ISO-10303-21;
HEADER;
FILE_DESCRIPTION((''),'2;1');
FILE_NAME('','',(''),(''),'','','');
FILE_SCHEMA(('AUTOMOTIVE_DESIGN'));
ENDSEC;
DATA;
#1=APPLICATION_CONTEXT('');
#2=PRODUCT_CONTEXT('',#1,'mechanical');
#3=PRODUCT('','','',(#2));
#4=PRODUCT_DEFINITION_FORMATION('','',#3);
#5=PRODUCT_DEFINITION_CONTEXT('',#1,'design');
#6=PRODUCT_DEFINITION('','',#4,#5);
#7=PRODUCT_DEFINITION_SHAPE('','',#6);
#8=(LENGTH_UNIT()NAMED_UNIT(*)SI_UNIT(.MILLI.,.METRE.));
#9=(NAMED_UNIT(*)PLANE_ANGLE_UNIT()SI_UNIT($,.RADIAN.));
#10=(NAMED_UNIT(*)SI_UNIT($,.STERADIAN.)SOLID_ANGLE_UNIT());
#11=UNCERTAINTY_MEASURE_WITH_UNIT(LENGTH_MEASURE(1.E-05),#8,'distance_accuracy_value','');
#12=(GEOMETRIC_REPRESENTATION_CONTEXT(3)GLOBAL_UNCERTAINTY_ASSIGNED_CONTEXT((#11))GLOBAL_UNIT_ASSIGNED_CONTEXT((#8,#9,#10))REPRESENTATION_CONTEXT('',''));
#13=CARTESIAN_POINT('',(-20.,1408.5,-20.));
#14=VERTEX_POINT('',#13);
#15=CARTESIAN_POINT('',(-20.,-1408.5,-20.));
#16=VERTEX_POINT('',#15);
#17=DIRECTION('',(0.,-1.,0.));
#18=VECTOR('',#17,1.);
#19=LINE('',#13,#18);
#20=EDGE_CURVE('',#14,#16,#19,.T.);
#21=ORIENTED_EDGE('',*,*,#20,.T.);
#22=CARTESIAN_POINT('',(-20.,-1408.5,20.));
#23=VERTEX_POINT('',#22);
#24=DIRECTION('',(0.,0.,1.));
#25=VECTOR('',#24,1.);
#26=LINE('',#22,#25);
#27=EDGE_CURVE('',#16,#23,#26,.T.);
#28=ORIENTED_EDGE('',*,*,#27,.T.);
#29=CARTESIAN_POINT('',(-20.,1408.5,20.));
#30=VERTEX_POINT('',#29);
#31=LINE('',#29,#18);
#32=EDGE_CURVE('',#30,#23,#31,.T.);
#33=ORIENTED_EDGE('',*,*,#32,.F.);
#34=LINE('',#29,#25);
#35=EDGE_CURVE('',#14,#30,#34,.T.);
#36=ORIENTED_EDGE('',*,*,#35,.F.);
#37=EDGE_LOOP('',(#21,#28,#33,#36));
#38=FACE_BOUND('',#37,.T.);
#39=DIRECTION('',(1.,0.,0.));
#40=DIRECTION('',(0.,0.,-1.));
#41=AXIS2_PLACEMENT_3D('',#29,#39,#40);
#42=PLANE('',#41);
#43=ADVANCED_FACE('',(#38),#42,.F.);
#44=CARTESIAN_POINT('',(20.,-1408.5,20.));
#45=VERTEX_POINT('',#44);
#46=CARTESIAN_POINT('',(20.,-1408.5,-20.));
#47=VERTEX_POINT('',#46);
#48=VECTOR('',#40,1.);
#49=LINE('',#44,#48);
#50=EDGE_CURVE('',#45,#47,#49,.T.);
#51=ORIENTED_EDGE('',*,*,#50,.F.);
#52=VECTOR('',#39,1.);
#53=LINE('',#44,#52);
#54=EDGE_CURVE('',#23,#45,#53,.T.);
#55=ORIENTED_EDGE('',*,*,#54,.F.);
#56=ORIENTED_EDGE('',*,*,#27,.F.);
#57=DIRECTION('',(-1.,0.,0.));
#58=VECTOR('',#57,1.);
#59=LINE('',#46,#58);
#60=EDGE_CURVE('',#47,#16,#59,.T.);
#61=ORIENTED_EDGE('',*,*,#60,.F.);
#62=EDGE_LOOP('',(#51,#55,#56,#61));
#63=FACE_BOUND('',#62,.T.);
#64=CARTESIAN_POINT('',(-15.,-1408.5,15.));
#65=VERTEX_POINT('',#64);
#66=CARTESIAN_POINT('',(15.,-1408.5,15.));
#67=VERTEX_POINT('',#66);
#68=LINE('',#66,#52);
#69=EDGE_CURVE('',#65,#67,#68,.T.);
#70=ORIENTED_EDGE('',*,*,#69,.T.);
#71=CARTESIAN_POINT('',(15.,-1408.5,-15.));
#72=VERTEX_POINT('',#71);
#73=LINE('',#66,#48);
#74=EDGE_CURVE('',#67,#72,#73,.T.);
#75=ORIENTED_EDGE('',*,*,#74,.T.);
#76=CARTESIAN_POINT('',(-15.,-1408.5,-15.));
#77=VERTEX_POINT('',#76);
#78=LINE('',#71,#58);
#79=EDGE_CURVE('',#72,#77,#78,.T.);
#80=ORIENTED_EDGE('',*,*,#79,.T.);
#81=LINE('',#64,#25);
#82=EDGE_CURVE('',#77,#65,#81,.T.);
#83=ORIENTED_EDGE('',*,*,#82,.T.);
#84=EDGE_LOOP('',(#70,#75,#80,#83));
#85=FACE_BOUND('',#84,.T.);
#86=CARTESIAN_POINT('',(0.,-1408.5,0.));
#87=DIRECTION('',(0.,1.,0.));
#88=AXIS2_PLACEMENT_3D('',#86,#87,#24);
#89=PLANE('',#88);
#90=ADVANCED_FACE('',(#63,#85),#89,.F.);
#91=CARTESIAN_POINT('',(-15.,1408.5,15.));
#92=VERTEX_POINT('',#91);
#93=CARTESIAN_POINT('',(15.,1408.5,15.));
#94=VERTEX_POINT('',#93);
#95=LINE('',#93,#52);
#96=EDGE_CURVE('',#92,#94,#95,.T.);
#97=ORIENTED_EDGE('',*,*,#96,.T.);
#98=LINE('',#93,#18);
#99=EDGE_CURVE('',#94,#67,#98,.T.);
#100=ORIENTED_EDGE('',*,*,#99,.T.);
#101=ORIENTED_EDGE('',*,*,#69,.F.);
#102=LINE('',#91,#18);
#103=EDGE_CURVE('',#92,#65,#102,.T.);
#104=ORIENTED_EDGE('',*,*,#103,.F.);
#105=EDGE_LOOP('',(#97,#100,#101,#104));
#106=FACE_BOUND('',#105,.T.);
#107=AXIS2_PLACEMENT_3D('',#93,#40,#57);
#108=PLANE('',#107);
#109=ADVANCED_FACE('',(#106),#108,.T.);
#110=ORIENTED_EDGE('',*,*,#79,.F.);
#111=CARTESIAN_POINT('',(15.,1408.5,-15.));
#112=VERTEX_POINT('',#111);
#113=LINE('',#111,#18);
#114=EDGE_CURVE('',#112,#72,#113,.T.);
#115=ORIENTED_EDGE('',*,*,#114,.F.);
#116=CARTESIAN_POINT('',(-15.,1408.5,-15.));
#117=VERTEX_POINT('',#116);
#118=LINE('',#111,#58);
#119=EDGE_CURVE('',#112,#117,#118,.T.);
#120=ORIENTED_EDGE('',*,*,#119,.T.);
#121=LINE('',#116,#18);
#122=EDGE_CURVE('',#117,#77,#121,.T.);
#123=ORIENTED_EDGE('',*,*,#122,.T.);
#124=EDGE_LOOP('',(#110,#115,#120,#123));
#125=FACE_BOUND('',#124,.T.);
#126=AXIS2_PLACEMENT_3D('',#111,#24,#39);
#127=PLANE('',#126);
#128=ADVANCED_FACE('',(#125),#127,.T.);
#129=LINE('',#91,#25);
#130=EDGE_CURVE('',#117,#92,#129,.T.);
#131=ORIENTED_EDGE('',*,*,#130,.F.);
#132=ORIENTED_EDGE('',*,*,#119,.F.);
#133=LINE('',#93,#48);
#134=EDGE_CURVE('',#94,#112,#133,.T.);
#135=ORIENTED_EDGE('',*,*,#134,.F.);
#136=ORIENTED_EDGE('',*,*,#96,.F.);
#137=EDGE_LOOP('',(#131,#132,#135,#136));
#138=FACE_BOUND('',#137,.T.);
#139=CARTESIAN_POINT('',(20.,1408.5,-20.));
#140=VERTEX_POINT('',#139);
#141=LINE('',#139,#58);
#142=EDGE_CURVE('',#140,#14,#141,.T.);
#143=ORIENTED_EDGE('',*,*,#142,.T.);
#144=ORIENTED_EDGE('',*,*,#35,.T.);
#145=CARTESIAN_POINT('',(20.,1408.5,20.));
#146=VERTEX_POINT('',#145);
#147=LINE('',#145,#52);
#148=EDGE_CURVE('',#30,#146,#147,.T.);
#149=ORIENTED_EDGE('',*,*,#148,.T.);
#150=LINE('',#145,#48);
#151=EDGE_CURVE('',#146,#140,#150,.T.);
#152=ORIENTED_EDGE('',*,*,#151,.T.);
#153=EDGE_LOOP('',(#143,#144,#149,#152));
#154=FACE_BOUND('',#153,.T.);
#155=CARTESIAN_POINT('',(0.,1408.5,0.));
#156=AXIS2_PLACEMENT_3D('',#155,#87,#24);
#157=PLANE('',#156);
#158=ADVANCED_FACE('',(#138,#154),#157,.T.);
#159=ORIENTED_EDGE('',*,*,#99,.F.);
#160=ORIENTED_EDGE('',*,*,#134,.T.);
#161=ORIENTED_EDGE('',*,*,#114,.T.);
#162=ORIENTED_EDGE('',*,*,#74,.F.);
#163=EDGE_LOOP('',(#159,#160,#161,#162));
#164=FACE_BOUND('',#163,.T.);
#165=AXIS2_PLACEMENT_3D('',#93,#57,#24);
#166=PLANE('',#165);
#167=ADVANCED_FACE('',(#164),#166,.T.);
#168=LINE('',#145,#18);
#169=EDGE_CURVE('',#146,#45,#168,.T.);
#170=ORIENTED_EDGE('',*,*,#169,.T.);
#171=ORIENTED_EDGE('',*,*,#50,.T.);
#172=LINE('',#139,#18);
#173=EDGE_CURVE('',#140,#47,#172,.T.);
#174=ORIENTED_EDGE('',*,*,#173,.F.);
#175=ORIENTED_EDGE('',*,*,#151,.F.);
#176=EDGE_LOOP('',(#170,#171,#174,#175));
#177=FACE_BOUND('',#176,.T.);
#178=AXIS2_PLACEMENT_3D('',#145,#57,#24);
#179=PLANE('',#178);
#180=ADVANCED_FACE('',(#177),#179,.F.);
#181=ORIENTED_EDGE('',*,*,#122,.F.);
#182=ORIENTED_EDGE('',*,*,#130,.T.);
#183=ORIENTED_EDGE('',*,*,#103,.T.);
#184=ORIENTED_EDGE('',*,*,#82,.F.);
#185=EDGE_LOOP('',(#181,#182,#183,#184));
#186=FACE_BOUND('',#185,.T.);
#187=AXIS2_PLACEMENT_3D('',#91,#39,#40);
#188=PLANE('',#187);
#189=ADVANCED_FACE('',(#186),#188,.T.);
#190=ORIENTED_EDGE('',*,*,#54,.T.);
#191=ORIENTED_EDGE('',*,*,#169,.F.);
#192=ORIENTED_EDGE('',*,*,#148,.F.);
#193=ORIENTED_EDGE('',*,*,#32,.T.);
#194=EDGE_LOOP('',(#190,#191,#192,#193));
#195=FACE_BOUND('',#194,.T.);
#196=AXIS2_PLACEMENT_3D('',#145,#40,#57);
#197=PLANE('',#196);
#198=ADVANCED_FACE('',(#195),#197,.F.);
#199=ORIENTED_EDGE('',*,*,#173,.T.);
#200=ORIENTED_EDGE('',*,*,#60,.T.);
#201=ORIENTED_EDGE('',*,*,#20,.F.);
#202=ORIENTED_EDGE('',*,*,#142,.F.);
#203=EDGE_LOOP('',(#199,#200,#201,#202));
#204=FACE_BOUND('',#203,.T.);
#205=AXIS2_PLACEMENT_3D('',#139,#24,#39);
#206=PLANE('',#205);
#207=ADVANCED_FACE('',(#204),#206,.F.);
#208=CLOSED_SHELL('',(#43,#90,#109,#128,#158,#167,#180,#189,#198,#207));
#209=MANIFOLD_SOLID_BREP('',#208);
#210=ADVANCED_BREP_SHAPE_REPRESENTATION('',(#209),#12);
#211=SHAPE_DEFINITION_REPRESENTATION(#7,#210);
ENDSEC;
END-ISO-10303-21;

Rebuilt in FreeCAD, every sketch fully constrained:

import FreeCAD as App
import Part
import Sketcher

V = App.Vector

doc = App.newDocument("Part")
body = doc.addObject("PartDesign::Body", "Body")

# Sketch on XZ plane
sketch1 = body.newObject("Sketcher::SketchObject", "Sketch")
sketch1.AttachmentSupport = (doc.getObject("XZ_Plane"), [""])
sketch1.MapMode = "FlatFace"
sketch1.addGeometry(Part.LineSegment(V(-20, -20, 0), V(-20, 20, 0)), False)
sketch1.addGeometry(Part.LineSegment(V(-20, 20, 0), V(20, 20, 0)), False)
sketch1.addGeometry(Part.LineSegment(V(20, 20, 0), V(20, -20, 0)), False)
sketch1.addGeometry(Part.LineSegment(V(20, -20, 0), V(-20, -20, 0)), False)
sketch1.addGeometry(Part.LineSegment(V(15, 15, 0), V(-15, 15, 0)), False)
sketch1.addGeometry(Part.LineSegment(V(-15, 15, 0), V(-15, -15, 0)), False)
sketch1.addGeometry(Part.LineSegment(V(-15, -15, 0), V(15, -15, 0)), False)
sketch1.addGeometry(Part.LineSegment(V(15, -15, 0), V(15, 15, 0)), False)
sketch1.addConstraint(Sketcher.Constraint("Coincident", 0, 2, 1, 1))
sketch1.addConstraint(Sketcher.Constraint("Coincident", 1, 2, 2, 1))
sketch1.addConstraint(Sketcher.Constraint("Coincident", 2, 2, 3, 1))
sketch1.addConstraint(Sketcher.Constraint("Coincident", 3, 2, 0, 1))
sketch1.addConstraint(Sketcher.Constraint("Coincident", 4, 2, 5, 1))
sketch1.addConstraint(Sketcher.Constraint("Coincident", 5, 2, 6, 1))
sketch1.addConstraint(Sketcher.Constraint("Coincident", 6, 2, 7, 1))
sketch1.addConstraint(Sketcher.Constraint("Coincident", 7, 2, 4, 1))
sketch1.addConstraint(Sketcher.Constraint("Vertical", 0))
sketch1.addConstraint(Sketcher.Constraint("Horizontal", 1))
sketch1.addConstraint(Sketcher.Constraint("Vertical", 2))
sketch1.addConstraint(Sketcher.Constraint("Horizontal", 3))
sketch1.addConstraint(Sketcher.Constraint("Horizontal", 4))
sketch1.addConstraint(Sketcher.Constraint("Vertical", 5))
sketch1.addConstraint(Sketcher.Constraint("Horizontal", 6))
sketch1.addConstraint(Sketcher.Constraint("Vertical", 7))
sketch1.addConstraint(Sketcher.Constraint("Symmetric", 0, 2, 2, 2, -1, 1))
sketch1.addConstraint(Sketcher.Constraint("Symmetric", 4, 2, 6, 2, -1, 1))
sketch1.addConstraint(Sketcher.Constraint("Equal", 3, 0))
sketch1.addConstraint(Sketcher.Constraint("Equal", 6, 5))
sketch1.addConstraint(Sketcher.Constraint("DistanceX", 1, 1, 1, 2, 40.0))
sketch1.addConstraint(Sketcher.Constraint("DistanceX", 4, 2, 4, 1, 30.0))
pad1 = body.newObject("PartDesign::Pad", "Pad")
pad1.Profile = sketch1
pad1.Length = 2817
pad1.Midplane = True

doc.recompute()
